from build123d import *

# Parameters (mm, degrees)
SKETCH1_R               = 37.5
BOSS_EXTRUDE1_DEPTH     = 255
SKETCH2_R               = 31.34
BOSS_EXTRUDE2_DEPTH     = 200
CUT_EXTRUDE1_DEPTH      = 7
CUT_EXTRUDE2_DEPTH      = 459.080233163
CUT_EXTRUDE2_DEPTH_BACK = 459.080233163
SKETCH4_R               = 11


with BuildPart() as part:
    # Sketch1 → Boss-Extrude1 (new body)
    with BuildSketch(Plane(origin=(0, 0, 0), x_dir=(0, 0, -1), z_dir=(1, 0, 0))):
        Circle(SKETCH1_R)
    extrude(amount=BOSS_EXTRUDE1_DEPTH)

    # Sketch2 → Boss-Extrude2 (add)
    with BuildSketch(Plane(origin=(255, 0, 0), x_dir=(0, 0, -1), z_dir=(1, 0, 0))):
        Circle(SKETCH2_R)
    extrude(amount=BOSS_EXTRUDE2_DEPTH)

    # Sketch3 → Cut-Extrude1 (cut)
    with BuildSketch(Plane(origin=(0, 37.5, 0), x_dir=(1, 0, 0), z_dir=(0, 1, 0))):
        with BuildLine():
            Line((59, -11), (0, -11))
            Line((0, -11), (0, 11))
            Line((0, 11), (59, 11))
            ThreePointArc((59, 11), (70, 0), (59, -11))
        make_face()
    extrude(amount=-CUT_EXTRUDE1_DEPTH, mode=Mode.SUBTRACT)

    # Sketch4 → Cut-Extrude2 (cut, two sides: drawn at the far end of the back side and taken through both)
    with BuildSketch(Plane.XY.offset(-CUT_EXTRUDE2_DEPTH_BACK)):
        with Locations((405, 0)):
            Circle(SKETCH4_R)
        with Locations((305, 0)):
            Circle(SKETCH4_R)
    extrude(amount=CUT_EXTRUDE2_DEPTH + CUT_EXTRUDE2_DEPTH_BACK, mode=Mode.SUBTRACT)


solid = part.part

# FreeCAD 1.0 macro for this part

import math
import FreeCAD as App
import Part
import Sketcher

V = App.Vector
Q = App.Units.Quantity

doc = App.newDocument("Part")
body = doc.addObject("PartDesign::Body", "Body")

# Sketch on YZ plane
sketch1 = body.newObject("Sketcher::SketchObject", "Sketch")
sketch1.AttachmentSupport = (doc.getObject("YZ_Plane"), [""])
sketch1.MapMode = "FlatFace"
sketch1.addGeometry(Part.Circle(V(0, 0, 0), V(0, 0, 1), 37.5), False)
sketch1.addConstraint(Sketcher.Constraint("Coincident", 0, 3, -1, 1))
sketch1.addConstraint(Sketcher.Constraint("Diameter", 0, Q("75 mm")))
pad1 = body.newObject("PartDesign::Pad", "Pad")
pad1.Profile = sketch1
pad1.Length = 255

# Sketch on YZ plane
sketch2 = body.newObject("Sketcher::SketchObject", "Sketch001")
sketch2.AttachmentSupport = (doc.getObject("YZ_Plane"), [""])
sketch2.MapMode = "FlatFace"
sketch2.AttachmentOffset = App.Placement(V(0, 0, 255), App.Rotation())
sketch2.addGeometry(Part.Circle(V(0, 0, 0), V(0, 0, 1), 31.34), False)
sketch2.addConstraint(Sketcher.Constraint("Coincident", 0, 3, -1, 1))
sketch2.addConstraint(Sketcher.Constraint("Diameter", 0, Q("62.68 mm")))
pad2 = body.newObject("PartDesign::Pad", "Pad001")
pad2.Profile = sketch2
pad2.Length = 200

# Sketch on XZ plane
sketch3 = body.newObject("Sketcher::SketchObject", "Sketch002")
sketch3.AttachmentSupport = (doc.getObject("XZ_Plane"), [""])
sketch3.MapMode = "FlatFace"
sketch3.AttachmentOffset = App.Placement(V(0, 0, -37.5), App.Rotation())
sketch3.addGeometry(Part.LineSegment(V(0, 11, 0), V(59, 11, 0)), False)
sketch3.addGeometry(Part.ArcOfCircle(Part.Circle(V(59, 0, 0), V(0, 0, 1), 11), math.radians(-90), math.radians(90)), False)
sketch3.addGeometry(Part.LineSegment(V(59, -11, 0), V(0, -11, 0)), False)
sketch3.addGeometry(Part.LineSegment(V(0, -11, 0), V(0, 11, 0)), False)
sketch3.addConstraint(Sketcher.Constraint("Tangent", 0, 2, 1, 2))
sketch3.addConstraint(Sketcher.Constraint("Tangent", 1, 1, 2, 1))
sketch3.addConstraint(Sketcher.Constraint("Coincident", 2, 2, 3, 1))
sketch3.addConstraint(Sketcher.Constraint("Coincident", 3, 2, 0, 1))
sketch3.addConstraint(Sketcher.Constraint("Horizontal", 0))
sketch3.addConstraint(Sketcher.Constraint("Horizontal", 2))
sketch3.addConstraint(Sketcher.Constraint("Vertical", 3))
sketch3.addConstraint(Sketcher.Constraint("Symmetric", 2, 2, 3, 2, -1, 1))
sketch3.addConstraint(Sketcher.Constraint("Radius", 1, Q("11 mm")))
sketch3.addConstraint(Sketcher.Constraint("DistanceX", 0, 1, 0, 2, Q("59 mm")))
pocket1 = body.newObject("PartDesign::Pocket", "Pocket")
pocket1.Profile = sketch3
pocket1.Length = 7
pocket1.Reversed = True

# Sketch on XY plane
sketch4 = body.newObject("Sketcher::SketchObject", "Sketch003")
sketch4.AttachmentSupport = (doc.getObject("XY_Plane"), [""])
sketch4.MapMode = "FlatFace"
sketch4.addGeometry(Part.Circle(V(405, 0, 0), V(0, 0, 1), 11), False)
sketch4.addGeometry(Part.Circle(V(305, 0, 0), V(0, 0, 1), 11), False)
sketch4.addConstraint(Sketcher.Constraint("Equal", 0, 1))
sketch4.addConstraint(Sketcher.Constraint("PointOnObject", 0, 3, -1))
sketch4.addConstraint(Sketcher.Constraint("PointOnObject", 1, 3, -1))
sketch4.addConstraint(Sketcher.Constraint("Diameter", 0, Q("22 mm")))
sketch4.addConstraint(Sketcher.Constraint("DistanceX", -1, 1, 0, 3, Q("405 mm")))
sketch4.addConstraint(Sketcher.Constraint("DistanceX", -1, 1, 1, 3, Q("305 mm")))
pocket2 = body.newObject("PartDesign::Pocket", "Pocket001")
pocket2.Profile = sketch4
pocket2.Type = "ThroughAll"
pocket2.Midplane = True

doc.recompute()
